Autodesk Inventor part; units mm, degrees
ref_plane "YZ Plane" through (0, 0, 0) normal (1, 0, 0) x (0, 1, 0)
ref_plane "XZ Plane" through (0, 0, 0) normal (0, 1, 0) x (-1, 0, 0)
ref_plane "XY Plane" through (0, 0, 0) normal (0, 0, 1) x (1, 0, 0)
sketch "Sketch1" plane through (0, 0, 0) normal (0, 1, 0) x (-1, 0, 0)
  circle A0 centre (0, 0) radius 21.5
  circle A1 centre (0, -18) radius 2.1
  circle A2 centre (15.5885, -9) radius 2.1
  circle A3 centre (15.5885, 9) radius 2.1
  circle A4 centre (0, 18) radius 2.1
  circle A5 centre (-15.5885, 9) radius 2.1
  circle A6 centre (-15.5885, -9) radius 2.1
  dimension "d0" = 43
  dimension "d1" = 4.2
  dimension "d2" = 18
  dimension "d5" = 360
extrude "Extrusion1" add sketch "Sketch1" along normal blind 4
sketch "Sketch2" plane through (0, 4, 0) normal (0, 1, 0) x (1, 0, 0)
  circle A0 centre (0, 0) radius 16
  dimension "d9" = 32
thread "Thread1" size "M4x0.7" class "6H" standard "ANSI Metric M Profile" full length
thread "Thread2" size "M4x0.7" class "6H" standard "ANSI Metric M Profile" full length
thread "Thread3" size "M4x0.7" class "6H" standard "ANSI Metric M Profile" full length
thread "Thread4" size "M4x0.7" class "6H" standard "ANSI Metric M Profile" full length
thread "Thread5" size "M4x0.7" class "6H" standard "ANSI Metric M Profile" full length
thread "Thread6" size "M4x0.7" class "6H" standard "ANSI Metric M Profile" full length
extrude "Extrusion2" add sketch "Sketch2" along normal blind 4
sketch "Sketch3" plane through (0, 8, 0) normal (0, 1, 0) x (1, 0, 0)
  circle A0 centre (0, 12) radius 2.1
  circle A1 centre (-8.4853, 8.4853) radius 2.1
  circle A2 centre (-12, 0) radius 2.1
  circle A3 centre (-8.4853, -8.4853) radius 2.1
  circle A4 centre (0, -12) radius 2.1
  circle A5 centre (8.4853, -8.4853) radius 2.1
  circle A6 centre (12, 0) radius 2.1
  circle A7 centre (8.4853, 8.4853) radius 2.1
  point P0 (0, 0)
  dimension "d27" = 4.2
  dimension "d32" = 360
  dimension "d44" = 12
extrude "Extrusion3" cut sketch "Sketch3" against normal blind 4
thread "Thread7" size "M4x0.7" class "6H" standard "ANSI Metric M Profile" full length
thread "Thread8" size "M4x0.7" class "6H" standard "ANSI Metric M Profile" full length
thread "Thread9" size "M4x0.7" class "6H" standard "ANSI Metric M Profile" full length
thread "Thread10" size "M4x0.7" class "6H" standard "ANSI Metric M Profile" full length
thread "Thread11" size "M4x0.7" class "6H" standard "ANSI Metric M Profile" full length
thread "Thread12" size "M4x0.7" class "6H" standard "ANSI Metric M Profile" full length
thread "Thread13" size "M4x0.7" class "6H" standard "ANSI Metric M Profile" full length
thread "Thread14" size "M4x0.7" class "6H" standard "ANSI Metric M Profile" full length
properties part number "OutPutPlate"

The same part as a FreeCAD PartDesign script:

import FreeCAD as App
import Part
import Sketcher
from FreeCAD import Vector

doc = App.newDocument("Part")
body = doc.addObject("PartDesign::Body", "Body")

sketch1 = body.newObject("Sketcher::SketchObject", "Sketch")
sketch1.AttachmentSupport = (doc.getObject("XZ_Plane"), [""])
sketch1.MapMode = "FlatFace"
sketch1.addGeometry([
    Part.Circle(Vector(0, 0, 0), Vector(0, 0, 1), 21.5),
    Part.Circle(Vector(15.6, -9, 0), Vector(0, 0, 1), 2.1),
    Part.Circle(Vector(0, -18, 0), Vector(0, 0, 1), 2.1),
    Part.Circle(Vector(-15.6, -9, 0), Vector(0, 0, 1), 2.1),
    Part.Circle(Vector(15.6, 9, 0), Vector(0, 0, 1), 2.1),
    Part.Circle(Vector(-15.6, 9, 0), Vector(0, 0, 1), 2.1),
    Part.Circle(Vector(0, 18, 0), Vector(0, 0, 1), 2.1),
], False)
sketch1.addConstraint([
    Sketcher.Constraint("Coincident", 0, 3, -1, 1),
    Sketcher.Constraint("Equal", 1, 2),
    Sketcher.Constraint("Equal", 2, 3),
    Sketcher.Constraint("Equal", 3, 4),
    Sketcher.Constraint("Equal", 4, 5),
    Sketcher.Constraint("Equal", 5, 6),
    Sketcher.Constraint("Symmetric", 3, 3, 4, 3, -1, 1),
    Sketcher.Constraint("Symmetric", 1, 3, 5, 3, -1, 1),
    Sketcher.Constraint("Symmetric", 2, 3, 6, 3, -1, 1),
    Sketcher.Constraint("Symmetric", 1, 3, 3, 3, -2),
    Sketcher.Constraint("PointOnObject", 2, 3, -2),
    Sketcher.Constraint("Diameter", 0, 43.0),
    Sketcher.Constraint("Diameter", 1, 4.2),
    Sketcher.Constraint("DistanceY", 2, 3, -1, 1, 18.0),
    Sketcher.Constraint("DistanceY", 1, 3, 4, 3, 18.0),
    Sketcher.Constraint("DistanceX", 3, 3, 1, 3, 31.177),
])
pad1 = body.newObject("PartDesign::Pad", "Pad")
pad1.Profile = sketch1
pad1.Length = 4
pad1.Reversed = True

sketch2 = body.newObject("Sketcher::SketchObject", "Sketch001")
sketch2.AttachmentSupport = (doc.getObject("XZ_Plane"), [""])
sketch2.MapMode = "FlatFace"
sketch2.AttachmentOffset = App.Placement(Vector(0, 0, -4), App.Rotation())
sketch2.addGeometry(Part.Circle(Vector(0, 0, 0), Vector(0, 0, 1), 16), False)
sketch2.addConstraint([
    Sketcher.Constraint("Coincident", 0, 3, -1, 1),
    Sketcher.Constraint("Diameter", 0, 32.0),
])
pad2 = body.newObject("PartDesign::Pad", "Pad001")
pad2.Profile = sketch2
pad2.Length = 4
pad2.Reversed = True

sketch3 = body.newObject("Sketcher::SketchObject", "Sketch002")
sketch3.AttachmentSupport = (doc.getObject("XZ_Plane"), [""])
sketch3.MapMode = "FlatFace"
sketch3.AttachmentOffset = App.Placement(Vector(0, 0, -8), App.Rotation())
sketch3.addGeometry([
    Part.Circle(Vector(0, -12, 0), Vector(0, 0, 1), 2.1),
    Part.Circle(Vector(-8.5, -8.5, 0), Vector(0, 0, 1), 2.1),
    Part.Circle(Vector(-12, 0, 0), Vector(0, 0, 1), 2.1),
    Part.Circle(Vector(-8.5, 8.5, 0), Vector(0, 0, 1), 2.1),
    Part.Circle(Vector(0, 12, 0), Vector(0, 0, 1), 2.1),
    Part.Circle(Vector(8.5, 8.5, 0), Vector(0, 0, 1), 2.1),
    Part.Circle(Vector(12, 0, 0), Vector(0, 0, 1), 2.1),
    Part.Circle(Vector(8.5, -8.5, 0), Vector(0, 0, 1), 2.1),
], False)
sketch3.addConstraint([
    Sketcher.Constraint("Equal", 0, 1),
    Sketcher.Constraint("Equal", 1, 2),
    Sketcher.Constraint("Equal", 2, 3),
    Sketcher.Constraint("Equal", 3, 4),
    Sketcher.Constraint("Equal", 4, 5),
    Sketcher.Constraint("Equal", 5, 6),
    Sketcher.Constraint("Equal", 6, 7),
    Sketcher.Constraint("Symmetric", 0, 3, 4, 3, -1, 1),
    Sketcher.Constraint("Symmetric", 1, 3, 5, 3, -1, 1),
    Sketcher.Constraint("Symmetric", 2, 3, 6, 3, -1, 1),
    Sketcher.Constraint("Symmetric", 3, 3, 7, 3, -1, 1),
    Sketcher.Constraint("Symmetric", 3, 3, 5, 3, -2),
    Sketcher.Constraint("PointOnObject", 0, 3, -2),
    Sketcher.Constraint("PointOnObject", 2, 3, -1),
    Sketcher.Constraint("Diameter", 0, 4.2),
    Sketcher.Constraint("DistanceY", 0, 3, -1, 1, 12.0),
    Sketcher.Constraint("DistanceX", 2, 3, -1, 1, 12.0),
    Sketcher.Constraint("DistanceX", 1, 3, -1, 1, 8.4853),
    Sketcher.Constraint("DistanceY", 1, 3, -1, 1, 8.4853),
])
pocket1 = body.newObject("PartDesign::Pocket", "Pocket")
pocket1.Profile = sketch3
pocket1.Length = 4
pocket1.Reversed = True

doc.recompute()
